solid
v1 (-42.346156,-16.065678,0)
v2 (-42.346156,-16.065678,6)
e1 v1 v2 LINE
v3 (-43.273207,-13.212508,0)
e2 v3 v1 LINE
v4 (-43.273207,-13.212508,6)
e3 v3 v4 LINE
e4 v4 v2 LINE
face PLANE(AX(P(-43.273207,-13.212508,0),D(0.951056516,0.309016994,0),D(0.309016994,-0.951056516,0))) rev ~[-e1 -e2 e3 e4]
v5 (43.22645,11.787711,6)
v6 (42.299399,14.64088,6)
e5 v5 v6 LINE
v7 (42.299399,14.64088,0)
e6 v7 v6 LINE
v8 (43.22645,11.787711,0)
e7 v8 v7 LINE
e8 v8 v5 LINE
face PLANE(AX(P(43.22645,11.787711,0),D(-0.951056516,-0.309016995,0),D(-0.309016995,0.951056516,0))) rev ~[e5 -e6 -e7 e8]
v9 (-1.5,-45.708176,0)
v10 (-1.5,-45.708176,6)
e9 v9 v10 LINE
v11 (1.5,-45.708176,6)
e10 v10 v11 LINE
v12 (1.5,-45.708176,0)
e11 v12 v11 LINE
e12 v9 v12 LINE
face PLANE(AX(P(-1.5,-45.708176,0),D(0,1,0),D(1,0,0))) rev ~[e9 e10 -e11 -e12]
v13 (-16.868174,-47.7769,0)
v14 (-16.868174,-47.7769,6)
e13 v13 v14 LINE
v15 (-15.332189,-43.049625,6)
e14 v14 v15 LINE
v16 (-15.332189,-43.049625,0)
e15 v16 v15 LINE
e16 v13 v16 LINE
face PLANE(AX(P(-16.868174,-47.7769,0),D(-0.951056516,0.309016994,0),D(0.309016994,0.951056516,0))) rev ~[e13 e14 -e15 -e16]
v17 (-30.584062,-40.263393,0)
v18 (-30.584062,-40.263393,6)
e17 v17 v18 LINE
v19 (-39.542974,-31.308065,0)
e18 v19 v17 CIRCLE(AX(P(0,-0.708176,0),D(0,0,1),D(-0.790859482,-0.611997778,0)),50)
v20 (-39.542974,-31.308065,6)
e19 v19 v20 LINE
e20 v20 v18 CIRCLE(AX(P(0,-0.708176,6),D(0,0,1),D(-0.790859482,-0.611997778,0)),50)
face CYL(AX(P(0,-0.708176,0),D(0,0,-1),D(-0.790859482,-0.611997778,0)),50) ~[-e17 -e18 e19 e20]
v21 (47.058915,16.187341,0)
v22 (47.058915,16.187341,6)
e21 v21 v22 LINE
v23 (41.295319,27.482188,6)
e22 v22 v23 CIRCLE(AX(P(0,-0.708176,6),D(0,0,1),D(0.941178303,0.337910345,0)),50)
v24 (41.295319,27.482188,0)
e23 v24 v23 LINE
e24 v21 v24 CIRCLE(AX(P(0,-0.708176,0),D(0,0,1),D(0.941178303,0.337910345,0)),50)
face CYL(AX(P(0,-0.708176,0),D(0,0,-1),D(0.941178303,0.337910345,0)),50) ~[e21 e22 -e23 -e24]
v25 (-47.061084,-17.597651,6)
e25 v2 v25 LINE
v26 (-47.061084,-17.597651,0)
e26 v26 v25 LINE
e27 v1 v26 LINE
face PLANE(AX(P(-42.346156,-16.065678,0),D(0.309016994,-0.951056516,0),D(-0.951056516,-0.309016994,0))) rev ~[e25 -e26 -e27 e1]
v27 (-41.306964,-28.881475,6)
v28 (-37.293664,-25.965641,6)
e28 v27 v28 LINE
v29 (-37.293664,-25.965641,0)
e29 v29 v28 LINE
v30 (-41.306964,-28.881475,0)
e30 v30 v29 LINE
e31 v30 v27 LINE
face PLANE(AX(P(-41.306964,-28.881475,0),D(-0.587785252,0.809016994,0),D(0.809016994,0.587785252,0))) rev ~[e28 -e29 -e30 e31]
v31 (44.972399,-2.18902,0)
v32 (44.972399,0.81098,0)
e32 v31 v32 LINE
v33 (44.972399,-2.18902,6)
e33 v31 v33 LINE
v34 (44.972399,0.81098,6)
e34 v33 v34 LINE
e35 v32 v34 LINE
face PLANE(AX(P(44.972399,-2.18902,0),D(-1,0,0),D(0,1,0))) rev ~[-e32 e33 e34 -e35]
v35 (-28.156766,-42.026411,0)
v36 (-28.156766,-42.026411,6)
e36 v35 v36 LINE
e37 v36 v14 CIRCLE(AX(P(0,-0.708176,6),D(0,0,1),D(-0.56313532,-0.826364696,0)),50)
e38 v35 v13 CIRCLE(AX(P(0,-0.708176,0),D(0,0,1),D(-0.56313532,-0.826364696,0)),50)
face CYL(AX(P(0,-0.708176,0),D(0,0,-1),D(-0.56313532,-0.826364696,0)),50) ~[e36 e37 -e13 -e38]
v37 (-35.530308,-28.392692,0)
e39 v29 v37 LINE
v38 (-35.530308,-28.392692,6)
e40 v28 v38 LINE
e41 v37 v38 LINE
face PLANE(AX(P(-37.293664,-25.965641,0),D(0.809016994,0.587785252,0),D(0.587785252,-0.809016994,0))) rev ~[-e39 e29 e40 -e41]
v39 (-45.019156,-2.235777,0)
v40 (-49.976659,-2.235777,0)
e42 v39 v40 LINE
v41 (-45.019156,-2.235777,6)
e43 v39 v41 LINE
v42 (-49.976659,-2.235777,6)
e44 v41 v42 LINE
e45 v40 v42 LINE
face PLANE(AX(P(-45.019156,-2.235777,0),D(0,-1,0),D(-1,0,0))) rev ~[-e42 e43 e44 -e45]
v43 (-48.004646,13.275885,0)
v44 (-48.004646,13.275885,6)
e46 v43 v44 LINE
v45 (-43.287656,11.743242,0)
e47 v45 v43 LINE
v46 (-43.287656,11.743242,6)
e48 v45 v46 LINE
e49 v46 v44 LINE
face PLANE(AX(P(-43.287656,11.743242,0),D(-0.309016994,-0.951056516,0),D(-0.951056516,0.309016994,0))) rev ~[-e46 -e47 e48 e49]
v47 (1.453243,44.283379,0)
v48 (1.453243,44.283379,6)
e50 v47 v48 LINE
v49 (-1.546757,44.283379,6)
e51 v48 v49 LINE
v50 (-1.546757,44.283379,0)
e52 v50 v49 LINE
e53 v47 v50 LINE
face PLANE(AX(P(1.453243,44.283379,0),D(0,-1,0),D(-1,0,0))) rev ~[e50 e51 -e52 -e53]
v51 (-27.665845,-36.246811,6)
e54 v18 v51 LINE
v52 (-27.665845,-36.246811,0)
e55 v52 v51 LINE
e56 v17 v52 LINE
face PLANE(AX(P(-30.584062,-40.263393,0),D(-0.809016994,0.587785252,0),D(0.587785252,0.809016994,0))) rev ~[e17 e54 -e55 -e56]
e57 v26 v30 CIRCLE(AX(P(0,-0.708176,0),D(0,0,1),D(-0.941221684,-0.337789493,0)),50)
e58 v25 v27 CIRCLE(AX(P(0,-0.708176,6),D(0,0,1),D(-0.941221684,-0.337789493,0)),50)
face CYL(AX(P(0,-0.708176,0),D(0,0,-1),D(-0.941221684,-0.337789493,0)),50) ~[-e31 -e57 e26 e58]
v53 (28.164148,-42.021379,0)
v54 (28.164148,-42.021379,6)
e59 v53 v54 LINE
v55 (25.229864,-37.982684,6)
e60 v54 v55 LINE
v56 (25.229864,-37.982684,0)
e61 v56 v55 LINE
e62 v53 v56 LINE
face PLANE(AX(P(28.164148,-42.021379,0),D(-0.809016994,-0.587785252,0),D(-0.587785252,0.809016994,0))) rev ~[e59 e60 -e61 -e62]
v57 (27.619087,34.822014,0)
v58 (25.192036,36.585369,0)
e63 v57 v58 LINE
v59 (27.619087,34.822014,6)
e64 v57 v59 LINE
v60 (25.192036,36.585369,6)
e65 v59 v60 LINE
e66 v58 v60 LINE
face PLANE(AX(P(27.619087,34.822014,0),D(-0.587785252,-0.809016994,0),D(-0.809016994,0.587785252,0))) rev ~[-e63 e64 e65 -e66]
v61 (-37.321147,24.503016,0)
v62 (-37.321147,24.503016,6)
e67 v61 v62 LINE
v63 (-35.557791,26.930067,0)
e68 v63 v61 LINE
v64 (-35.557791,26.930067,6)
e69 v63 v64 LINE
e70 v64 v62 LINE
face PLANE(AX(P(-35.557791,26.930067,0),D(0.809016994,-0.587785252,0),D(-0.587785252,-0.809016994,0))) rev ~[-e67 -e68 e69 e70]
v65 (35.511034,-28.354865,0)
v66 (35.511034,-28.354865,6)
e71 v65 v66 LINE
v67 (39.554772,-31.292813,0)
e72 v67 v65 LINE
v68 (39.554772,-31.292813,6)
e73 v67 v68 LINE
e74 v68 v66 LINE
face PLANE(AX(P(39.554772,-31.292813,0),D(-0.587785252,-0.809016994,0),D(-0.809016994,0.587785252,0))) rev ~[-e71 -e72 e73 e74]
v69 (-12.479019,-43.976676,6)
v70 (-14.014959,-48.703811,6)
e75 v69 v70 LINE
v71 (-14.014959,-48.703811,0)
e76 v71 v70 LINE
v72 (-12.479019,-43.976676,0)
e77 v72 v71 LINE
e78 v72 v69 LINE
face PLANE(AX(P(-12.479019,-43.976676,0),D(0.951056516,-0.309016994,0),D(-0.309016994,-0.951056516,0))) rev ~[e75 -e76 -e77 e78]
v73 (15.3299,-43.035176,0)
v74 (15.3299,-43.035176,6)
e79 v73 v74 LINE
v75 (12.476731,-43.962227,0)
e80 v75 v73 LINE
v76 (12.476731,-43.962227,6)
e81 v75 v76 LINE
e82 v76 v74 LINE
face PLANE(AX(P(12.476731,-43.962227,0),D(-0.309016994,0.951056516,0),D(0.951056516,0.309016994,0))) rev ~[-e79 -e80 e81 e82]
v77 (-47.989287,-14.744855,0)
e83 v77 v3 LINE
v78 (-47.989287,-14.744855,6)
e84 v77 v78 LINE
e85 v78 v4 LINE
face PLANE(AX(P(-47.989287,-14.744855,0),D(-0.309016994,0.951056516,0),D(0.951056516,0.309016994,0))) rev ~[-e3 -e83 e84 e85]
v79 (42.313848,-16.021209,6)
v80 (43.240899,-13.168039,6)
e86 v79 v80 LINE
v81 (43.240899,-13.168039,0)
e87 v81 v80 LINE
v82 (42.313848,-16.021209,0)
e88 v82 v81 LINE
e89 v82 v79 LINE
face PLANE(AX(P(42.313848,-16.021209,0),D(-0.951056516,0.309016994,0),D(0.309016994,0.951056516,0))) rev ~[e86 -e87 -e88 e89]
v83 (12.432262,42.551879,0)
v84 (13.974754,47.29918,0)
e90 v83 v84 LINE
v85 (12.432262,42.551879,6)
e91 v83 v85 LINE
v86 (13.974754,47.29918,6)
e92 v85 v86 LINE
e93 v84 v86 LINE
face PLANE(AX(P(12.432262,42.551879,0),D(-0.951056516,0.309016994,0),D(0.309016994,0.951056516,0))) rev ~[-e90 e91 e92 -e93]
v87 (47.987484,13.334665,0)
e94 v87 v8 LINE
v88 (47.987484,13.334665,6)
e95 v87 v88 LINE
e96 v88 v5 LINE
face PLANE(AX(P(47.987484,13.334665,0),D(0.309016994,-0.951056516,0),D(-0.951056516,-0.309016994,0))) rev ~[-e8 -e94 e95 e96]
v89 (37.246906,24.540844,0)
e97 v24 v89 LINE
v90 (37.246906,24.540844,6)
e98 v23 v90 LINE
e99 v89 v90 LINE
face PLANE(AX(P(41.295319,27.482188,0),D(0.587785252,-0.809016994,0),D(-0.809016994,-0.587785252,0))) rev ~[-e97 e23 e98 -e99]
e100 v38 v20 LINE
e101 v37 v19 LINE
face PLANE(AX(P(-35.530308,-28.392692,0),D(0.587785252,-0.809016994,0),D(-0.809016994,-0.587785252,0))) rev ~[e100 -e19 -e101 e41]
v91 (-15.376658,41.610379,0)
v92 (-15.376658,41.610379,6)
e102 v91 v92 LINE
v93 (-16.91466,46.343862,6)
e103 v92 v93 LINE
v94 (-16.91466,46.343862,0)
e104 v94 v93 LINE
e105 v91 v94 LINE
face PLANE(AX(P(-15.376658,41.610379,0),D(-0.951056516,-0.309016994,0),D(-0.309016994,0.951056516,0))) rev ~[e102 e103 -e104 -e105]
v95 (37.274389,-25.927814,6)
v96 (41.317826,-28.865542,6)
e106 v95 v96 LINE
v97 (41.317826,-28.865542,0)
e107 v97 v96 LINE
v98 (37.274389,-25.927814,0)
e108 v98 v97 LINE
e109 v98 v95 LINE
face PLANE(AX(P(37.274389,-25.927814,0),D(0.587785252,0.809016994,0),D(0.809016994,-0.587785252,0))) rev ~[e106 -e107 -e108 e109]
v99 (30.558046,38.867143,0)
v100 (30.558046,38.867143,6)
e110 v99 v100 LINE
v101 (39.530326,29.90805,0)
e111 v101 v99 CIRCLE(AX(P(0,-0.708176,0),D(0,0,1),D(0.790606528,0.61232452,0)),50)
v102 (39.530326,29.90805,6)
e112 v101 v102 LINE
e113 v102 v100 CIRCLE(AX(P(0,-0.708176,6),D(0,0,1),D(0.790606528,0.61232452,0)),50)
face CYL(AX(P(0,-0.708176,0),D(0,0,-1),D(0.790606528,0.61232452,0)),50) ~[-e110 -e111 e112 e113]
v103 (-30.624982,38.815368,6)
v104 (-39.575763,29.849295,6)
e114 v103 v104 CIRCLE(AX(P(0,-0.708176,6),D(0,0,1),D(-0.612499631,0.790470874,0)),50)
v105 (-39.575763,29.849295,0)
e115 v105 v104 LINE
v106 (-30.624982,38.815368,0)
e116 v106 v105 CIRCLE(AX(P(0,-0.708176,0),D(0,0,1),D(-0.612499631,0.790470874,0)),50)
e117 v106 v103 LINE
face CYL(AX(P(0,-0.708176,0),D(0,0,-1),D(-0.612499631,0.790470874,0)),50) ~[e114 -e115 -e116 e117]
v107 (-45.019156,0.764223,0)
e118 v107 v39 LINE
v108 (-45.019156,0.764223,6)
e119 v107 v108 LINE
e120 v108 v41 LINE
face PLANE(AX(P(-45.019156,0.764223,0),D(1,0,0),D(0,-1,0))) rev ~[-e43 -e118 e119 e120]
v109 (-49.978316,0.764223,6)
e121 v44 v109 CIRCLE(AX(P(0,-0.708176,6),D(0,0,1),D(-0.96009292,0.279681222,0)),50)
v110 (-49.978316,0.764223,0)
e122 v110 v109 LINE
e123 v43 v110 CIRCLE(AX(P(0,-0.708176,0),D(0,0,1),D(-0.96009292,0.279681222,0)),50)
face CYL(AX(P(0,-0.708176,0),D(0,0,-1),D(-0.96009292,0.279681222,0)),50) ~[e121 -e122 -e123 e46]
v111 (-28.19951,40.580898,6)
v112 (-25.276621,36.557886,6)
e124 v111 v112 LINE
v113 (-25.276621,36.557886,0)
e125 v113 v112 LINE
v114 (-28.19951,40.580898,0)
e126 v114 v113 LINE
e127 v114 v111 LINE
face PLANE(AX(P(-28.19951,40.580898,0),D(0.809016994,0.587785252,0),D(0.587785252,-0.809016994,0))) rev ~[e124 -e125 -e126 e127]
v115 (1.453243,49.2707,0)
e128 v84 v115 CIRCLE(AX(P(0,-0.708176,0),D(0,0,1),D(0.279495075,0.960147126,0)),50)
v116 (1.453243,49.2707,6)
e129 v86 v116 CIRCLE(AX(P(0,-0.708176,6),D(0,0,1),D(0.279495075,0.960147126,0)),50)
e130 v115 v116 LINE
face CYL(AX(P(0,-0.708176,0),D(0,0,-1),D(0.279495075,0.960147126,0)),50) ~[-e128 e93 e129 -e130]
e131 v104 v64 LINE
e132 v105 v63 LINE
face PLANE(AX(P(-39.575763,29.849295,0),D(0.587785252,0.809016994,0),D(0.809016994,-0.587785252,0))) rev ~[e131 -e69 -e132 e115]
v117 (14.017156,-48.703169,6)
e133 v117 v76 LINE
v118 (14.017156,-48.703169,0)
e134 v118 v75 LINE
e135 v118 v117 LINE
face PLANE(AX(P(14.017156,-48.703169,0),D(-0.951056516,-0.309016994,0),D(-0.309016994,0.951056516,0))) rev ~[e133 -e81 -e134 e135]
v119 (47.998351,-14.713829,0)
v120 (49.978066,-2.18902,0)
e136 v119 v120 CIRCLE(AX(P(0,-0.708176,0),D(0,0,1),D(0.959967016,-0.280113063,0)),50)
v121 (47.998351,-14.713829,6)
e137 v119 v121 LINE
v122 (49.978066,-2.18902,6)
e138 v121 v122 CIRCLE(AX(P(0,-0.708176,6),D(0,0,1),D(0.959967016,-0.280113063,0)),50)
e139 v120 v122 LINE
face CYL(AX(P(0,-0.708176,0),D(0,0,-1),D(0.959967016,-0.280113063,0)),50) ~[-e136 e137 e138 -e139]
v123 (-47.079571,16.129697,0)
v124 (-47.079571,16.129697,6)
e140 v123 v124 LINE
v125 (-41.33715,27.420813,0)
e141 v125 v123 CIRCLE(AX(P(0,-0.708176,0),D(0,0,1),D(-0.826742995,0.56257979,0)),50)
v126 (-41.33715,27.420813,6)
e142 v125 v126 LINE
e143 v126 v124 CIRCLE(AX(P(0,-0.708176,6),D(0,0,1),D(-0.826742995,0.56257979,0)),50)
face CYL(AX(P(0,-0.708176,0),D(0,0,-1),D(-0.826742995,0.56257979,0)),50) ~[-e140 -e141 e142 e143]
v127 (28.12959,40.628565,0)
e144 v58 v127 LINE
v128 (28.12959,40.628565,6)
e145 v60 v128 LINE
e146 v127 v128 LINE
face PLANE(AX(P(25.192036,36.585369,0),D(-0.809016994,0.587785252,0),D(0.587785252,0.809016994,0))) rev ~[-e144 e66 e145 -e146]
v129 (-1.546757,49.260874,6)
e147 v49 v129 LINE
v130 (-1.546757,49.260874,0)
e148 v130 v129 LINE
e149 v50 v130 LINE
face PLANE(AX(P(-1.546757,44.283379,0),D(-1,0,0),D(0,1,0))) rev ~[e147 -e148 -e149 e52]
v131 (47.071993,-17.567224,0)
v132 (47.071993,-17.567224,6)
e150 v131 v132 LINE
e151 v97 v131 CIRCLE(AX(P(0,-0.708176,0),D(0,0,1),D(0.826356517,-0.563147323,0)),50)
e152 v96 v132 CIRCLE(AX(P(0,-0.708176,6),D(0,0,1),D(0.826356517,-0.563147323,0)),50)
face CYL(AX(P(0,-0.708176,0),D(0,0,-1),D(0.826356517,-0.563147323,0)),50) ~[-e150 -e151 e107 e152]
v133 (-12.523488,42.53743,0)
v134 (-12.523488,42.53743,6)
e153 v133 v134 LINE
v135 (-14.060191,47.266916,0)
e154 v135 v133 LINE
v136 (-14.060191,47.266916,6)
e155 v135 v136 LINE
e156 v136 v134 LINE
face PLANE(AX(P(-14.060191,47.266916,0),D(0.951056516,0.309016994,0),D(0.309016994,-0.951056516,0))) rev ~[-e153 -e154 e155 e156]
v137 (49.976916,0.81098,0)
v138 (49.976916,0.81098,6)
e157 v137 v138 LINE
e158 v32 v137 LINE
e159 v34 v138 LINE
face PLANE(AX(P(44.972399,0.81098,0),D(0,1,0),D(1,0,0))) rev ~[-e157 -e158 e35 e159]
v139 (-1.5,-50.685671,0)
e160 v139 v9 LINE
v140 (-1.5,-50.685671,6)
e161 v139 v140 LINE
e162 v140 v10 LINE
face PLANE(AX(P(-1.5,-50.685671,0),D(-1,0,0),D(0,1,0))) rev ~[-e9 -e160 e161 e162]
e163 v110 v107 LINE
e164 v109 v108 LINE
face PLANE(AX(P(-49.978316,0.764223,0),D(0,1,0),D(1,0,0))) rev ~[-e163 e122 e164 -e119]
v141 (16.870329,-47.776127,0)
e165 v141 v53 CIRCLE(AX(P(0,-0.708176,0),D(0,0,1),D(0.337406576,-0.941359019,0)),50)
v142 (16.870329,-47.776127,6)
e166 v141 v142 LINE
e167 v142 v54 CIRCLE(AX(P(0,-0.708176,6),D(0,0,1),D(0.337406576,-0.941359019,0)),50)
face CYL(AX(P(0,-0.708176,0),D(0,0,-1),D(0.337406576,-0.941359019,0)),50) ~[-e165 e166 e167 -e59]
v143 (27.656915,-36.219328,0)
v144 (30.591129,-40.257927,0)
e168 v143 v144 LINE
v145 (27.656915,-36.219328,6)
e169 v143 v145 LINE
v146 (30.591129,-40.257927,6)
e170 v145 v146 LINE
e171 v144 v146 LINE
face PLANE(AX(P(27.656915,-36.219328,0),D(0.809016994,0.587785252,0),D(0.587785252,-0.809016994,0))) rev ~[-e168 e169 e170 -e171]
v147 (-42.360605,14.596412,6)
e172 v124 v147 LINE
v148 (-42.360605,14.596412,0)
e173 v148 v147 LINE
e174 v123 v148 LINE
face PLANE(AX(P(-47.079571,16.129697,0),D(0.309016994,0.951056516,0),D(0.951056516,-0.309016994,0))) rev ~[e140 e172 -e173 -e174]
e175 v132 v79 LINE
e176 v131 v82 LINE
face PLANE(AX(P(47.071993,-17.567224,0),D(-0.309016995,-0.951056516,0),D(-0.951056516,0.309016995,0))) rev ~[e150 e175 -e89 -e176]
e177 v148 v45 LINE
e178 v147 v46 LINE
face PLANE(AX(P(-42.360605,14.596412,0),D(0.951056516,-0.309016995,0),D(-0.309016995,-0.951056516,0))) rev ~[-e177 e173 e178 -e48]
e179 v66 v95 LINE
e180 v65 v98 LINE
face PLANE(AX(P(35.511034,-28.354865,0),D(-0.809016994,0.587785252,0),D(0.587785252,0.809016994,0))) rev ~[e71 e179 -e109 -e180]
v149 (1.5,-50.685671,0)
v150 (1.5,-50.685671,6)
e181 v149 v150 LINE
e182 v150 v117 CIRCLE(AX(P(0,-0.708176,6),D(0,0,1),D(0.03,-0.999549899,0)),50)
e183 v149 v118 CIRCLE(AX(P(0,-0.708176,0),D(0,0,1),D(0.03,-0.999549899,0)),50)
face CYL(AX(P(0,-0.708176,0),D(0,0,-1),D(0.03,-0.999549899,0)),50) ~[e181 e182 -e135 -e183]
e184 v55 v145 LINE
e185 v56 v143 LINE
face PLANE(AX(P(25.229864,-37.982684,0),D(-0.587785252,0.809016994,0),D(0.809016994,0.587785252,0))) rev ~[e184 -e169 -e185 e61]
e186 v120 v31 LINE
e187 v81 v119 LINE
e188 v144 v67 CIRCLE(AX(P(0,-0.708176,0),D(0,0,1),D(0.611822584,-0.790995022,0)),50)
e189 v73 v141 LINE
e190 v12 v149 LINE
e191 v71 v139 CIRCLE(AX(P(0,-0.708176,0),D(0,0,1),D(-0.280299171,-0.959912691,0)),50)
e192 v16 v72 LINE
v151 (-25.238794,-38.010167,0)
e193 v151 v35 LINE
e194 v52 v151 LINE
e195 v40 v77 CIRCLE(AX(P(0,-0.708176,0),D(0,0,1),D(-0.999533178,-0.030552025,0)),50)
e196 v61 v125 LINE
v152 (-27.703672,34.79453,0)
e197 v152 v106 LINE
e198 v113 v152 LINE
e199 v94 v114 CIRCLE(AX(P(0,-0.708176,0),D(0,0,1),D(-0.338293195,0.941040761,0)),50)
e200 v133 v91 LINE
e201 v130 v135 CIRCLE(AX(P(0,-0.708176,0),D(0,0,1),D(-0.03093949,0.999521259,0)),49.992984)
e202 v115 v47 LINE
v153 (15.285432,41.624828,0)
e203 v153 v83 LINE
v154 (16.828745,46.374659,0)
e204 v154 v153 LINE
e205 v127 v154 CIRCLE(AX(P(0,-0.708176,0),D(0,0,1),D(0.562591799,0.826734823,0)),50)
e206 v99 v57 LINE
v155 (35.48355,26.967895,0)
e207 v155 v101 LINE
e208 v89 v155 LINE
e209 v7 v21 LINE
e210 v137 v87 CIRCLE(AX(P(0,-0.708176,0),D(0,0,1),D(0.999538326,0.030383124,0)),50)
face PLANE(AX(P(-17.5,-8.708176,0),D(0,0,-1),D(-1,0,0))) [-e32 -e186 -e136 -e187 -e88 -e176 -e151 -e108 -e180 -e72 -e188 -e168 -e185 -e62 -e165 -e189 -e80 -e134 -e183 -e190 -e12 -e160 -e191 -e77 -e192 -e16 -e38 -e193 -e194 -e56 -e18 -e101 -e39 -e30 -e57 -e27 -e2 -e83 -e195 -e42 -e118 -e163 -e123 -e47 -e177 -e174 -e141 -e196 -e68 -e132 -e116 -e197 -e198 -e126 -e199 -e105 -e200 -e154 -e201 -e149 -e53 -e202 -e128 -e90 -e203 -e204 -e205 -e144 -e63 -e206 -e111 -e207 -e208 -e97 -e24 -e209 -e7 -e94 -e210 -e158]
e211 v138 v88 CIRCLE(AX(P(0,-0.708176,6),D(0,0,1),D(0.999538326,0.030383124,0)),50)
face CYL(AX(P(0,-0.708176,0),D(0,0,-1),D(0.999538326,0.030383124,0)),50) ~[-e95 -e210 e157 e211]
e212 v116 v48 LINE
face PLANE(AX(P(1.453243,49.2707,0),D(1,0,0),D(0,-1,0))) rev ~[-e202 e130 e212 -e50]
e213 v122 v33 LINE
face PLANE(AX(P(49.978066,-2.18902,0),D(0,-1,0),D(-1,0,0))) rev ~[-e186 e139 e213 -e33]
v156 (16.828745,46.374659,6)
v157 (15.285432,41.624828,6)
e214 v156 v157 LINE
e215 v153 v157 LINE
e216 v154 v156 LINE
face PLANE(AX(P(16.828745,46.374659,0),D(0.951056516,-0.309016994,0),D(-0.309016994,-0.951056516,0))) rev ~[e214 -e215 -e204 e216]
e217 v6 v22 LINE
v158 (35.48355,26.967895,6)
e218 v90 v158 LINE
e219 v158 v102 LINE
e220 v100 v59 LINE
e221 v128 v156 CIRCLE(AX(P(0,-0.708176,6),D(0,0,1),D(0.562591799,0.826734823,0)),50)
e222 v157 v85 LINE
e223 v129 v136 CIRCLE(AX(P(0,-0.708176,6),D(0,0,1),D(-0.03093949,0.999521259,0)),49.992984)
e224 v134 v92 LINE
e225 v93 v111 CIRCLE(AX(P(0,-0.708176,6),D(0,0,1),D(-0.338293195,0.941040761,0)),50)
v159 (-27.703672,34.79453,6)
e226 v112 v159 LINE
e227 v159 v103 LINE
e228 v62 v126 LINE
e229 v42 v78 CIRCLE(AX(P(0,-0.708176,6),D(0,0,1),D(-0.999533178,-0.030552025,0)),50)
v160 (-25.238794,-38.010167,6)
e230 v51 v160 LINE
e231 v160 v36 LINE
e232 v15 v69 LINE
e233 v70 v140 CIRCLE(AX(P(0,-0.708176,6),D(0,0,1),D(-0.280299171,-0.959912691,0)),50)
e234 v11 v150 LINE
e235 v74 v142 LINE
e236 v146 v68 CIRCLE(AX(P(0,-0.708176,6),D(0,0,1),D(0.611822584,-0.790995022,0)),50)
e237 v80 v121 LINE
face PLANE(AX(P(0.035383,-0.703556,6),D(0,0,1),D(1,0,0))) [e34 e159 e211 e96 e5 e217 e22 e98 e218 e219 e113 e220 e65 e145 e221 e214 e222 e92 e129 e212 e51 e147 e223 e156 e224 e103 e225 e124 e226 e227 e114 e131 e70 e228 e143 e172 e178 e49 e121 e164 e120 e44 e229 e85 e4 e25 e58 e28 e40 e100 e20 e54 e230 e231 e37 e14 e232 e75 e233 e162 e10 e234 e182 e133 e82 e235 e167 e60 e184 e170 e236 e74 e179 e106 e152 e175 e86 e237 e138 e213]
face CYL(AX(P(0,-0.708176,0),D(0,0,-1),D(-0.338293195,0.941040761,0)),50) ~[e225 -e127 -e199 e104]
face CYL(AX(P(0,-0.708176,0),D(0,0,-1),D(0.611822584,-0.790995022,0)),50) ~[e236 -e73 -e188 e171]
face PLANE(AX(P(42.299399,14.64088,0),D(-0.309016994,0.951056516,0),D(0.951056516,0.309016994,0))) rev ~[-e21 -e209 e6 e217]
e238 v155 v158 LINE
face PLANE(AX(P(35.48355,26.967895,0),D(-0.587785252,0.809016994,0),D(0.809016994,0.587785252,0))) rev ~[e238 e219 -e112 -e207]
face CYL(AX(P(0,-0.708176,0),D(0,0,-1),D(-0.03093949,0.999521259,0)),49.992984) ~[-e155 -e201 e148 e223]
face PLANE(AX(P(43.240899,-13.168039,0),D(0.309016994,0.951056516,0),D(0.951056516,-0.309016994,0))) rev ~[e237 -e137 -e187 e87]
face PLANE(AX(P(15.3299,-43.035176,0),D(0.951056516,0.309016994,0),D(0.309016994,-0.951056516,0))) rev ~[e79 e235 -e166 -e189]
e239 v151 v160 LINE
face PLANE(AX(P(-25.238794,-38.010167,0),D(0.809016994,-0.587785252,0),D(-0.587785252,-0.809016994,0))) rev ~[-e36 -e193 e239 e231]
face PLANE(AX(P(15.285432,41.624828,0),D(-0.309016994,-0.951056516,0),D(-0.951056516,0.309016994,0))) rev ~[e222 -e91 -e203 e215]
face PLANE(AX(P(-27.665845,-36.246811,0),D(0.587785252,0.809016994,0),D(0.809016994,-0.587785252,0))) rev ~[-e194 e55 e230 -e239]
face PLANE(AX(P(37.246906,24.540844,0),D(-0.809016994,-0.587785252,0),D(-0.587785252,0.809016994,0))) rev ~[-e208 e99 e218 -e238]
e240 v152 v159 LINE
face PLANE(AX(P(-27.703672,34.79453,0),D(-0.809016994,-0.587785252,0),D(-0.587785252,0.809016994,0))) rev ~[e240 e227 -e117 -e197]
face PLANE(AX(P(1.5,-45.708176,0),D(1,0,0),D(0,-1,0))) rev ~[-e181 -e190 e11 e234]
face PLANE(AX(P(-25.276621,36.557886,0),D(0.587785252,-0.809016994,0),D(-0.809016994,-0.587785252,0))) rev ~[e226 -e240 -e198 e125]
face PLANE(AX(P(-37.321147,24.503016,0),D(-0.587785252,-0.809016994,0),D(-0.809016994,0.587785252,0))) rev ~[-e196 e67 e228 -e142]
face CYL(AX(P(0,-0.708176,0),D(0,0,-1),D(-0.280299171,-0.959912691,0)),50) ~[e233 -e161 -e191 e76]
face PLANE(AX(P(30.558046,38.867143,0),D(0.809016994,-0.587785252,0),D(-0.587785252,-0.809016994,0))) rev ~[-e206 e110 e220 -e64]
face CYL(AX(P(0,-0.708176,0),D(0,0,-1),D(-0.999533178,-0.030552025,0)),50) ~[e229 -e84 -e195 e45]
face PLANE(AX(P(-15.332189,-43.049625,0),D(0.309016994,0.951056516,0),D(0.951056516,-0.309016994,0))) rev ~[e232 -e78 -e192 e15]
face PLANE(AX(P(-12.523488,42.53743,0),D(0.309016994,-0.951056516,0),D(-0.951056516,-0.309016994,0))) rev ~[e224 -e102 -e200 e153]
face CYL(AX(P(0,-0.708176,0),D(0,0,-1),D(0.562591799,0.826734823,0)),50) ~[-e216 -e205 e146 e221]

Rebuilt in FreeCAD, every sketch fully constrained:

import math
import FreeCAD as App
import Part
import Sketcher
Q = App.Units.Quantity

doc = App.newDocument("Part")
body = doc.addObject("PartDesign::Body", "Body")

# Sketch on XY plane
sketch1 = body.newObject("Sketcher::SketchObject", "Sketch")
sketch1.AttachmentSupport = (doc.getObject("XY_Plane"), [""])
sketch1.MapMode = "FlatFace"
sketch1.addGeometry([
    Part.ArcOfCircle(Part.Circle(App.Vector(0, -0.708176, 0), App.Vector(0, 0, 1), 50), math.radians(-106.278061), math.radians(-91.719131)),  # 0
    Part.LineSegment(App.Vector(-1.5, -50.685671, 0), App.Vector(-1.5, -45.708176, 0)),  # 1
    Part.LineSegment(App.Vector(-1.5, -45.708176, 0), App.Vector(1.5, -45.708176, 0)),  # 2
    Part.LineSegment(App.Vector(1.5, -45.708176, 0), App.Vector(1.5, -50.685671, 0)),  # 3
    Part.ArcOfCircle(Part.Circle(App.Vector(0, -0.708176, 0), App.Vector(0, 0, 1), 50), math.radians(-88.280869), math.radians(-73.719315)),  # 4
    Part.LineSegment(App.Vector(14.017156, -48.703169, 0), App.Vector(12.476731, -43.962227, 0)),  # 5
    Part.LineSegment(App.Vector(12.476731, -43.962227, 0), App.Vector(15.3299, -43.035176, 0)),  # 6
    Part.LineSegment(App.Vector(15.3299, -43.035176, 0), App.Vector(16.870329, -47.776127, 0)),  # 7
    Part.ArcOfCircle(Part.Circle(App.Vector(0, -0.708176, 0), App.Vector(0, 0, 1), 50), math.radians(-70.281053), math.radians(-55.716858)),  # 8
    Part.LineSegment(App.Vector(28.164148, -42.021379, 0), App.Vector(25.229864, -37.982684, 0)),  # 9
    Part.LineSegment(App.Vector(25.229864, -37.982684, 0), App.Vector(27.656915, -36.219328, 0)),  # 10
    Part.LineSegment(App.Vector(27.656915, -36.219328, 0), App.Vector(30.591129, -40.257927, 0)),  # 11
    Part.ArcOfCircle(Part.Circle(App.Vector(0, -0.708176, 0), App.Vector(0, 0, 1), 50), math.radians(-52.278595), math.radians(-37.711999)),  # 12
    Part.LineSegment(App.Vector(39.554772, -31.292813, 0), App.Vector(35.511034, -28.354865, 0)),  # 13
    Part.LineSegment(App.Vector(35.511034, -28.354865, 0), App.Vector(37.274389, -25.927814, 0)),  # 14
    Part.LineSegment(App.Vector(37.274389, -25.927814, 0), App.Vector(41.317826, -28.865542, 0)),  # 15
    Part.ArcOfCircle(Part.Circle(App.Vector(0, -0.708176, 0), App.Vector(0, 0, 1), 50), math.radians(-34.273737), math.radians(-19.705216)),  # 16
    Part.LineSegment(App.Vector(47.071993, -17.567224, 0), App.Vector(42.313848, -16.021209, 0)),  # 17
    Part.LineSegment(App.Vector(42.313848, -16.021209, 0), App.Vector(43.240899, -13.168039, 0)),  # 18
    Part.LineSegment(App.Vector(43.240899, -13.168039, 0), App.Vector(47.998351, -14.713829, 0)),  # 19
    Part.ArcOfCircle(Part.Circle(App.Vector(0, -0.708176, 0), App.Vector(0, 0, 1), 50), math.radians(-16.266953), math.radians(-1.69717)),  # 20
    Part.LineSegment(App.Vector(49.978066, -2.18902, 0), App.Vector(44.972399, -2.18902, 0)),  # 21
    Part.LineSegment(App.Vector(44.972399, -2.18902, 0), App.Vector(44.972399, 0.81098, 0)),  # 22
    Part.LineSegment(App.Vector(44.972399, 0.81098, 0), App.Vector(49.976916, 0.81098, 0)),  # 23
    Part.ArcOfCircle(Part.Circle(App.Vector(0, -0.708176, 0), App.Vector(0, 0, 1), 50), math.radians(1.741093), math.radians(16.311349)),  # 24
    Part.LineSegment(App.Vector(47.987484, 13.334665, 0), App.Vector(43.22645, 11.787711, 0)),  # 25
    Part.LineSegment(App.Vector(43.22645, 11.787711, 0), App.Vector(42.299399, 14.64088, 0)),  # 26
    Part.LineSegment(App.Vector(42.299399, 14.64088, 0), App.Vector(47.058915, 16.187341, 0)),  # 27
    Part.ArcOfCircle(Part.Circle(App.Vector(0, -0.708176, 0), App.Vector(0, 0, 1), 50), math.radians(19.749612), math.radians(34.319508)),  # 28
    Part.LineSegment(App.Vector(41.295319, 27.482188, 0), App.Vector(37.246906, 24.540844, 0)),  # 29
    Part.LineSegment(App.Vector(37.246906, 24.540844, 0), App.Vector(35.48355, 26.967895, 0)),  # 30
    Part.LineSegment(App.Vector(35.48355, 26.967895, 0), App.Vector(39.530326, 29.90805, 0)),  # 31
    Part.ArcOfCircle(Part.Circle(App.Vector(0, -0.708176, 0), App.Vector(0, 0, 1), 50), math.radians(37.757771), math.radians(52.326508)),  # 32
    Part.LineSegment(App.Vector(30.558046, 38.867143, 0), App.Vector(27.619087, 34.822014, 0)),  # 33
    Part.LineSegment(App.Vector(27.619087, 34.822014, 0), App.Vector(25.192036, 36.585369, 0)),  # 34
    Part.LineSegment(App.Vector(25.192036, 36.585369, 0), App.Vector(28.12959, 40.628565, 0)),  # 35
    Part.ArcOfCircle(Part.Circle(App.Vector(0, -0.708176, 0), App.Vector(0, 0, 1), 50), math.radians(55.764772), math.radians(70.331664)),  # 36
    Part.LineSegment(App.Vector(16.828745, 46.374659, 0), App.Vector(15.285432, 41.624828, 0)),  # 37
    Part.LineSegment(App.Vector(15.285432, 41.624828, 0), App.Vector(12.432262, 42.551879, 0)),  # 38
    Part.LineSegment(App.Vector(12.432262, 42.551879, 0), App.Vector(13.974754, 47.29918, 0)),  # 39
    Part.ArcOfCircle(Part.Circle(App.Vector(0, -0.708176, 0), App.Vector(0, 0, 1), 50), math.radians(73.769928), math.radians(88.334472)),  # 40
    Part.LineSegment(App.Vector(1.453243, 49.2707, 0), App.Vector(1.453243, 44.283379, 0)),  # 41
    Part.LineSegment(App.Vector(1.453243, 44.283379, 0), App.Vector(-1.546757, 44.283379, 0)),  # 42
    Part.LineSegment(App.Vector(-1.546757, 44.283379, 0), App.Vector(-1.546757, 49.260874, 0)),  # 43
    Part.ArcOfCircle(Part.Circle(App.Vector(0, -0.708176, 0), App.Vector(0, 0, 1), 49.992984), math.radians(91.772985), math.radians(106.334422)),  # 44
    Part.LineSegment(App.Vector(-14.060191, 47.266916, 0), App.Vector(-12.523488, 42.53743, 0)),  # 45
    Part.LineSegment(App.Vector(-12.523488, 42.53743, 0), App.Vector(-15.376658, 41.610379, 0)),  # 46
    Part.LineSegment(App.Vector(-15.376658, 41.610379, 0), App.Vector(-16.91466, 46.343862, 0)),  # 47
    Part.ArcOfCircle(Part.Circle(App.Vector(0, -0.708176, 0), App.Vector(0, 0, 1), 50), math.radians(109.77292), math.radians(124.332199)),  # 48
    Part.LineSegment(App.Vector(-28.19951, 40.580898, 0), App.Vector(-25.276621, 36.557886, 0)),  # 49
    Part.LineSegment(App.Vector(-25.276621, 36.557886, 0), App.Vector(-27.703672, 34.79453, 0)),  # 50
    Part.LineSegment(App.Vector(-27.703672, 34.79453, 0), App.Vector(-30.624982, 38.815368, 0)),  # 51
    Part.ArcOfCircle(Part.Circle(App.Vector(0, -0.708176, 0), App.Vector(0, 0, 1), 50), math.radians(127.770463), math.radians(142.32734)),  # 52
    Part.LineSegment(App.Vector(-39.575763, 29.849295, 0), App.Vector(-35.557791, 26.930067, 0)),  # 53
    Part.LineSegment(App.Vector(-35.557791, 26.930067, 0), App.Vector(-37.321147, 24.503016, 0)),  # 54
    Part.LineSegment(App.Vector(-37.321147, 24.503016, 0), App.Vector(-41.33715, 27.420813, 0)),  # 55
    Part.ArcOfCircle(Part.Circle(App.Vector(0, -0.708176, 0), App.Vector(0, 0, 1), 50), math.radians(145.765604), math.radians(160.320557)),  # 56
    Part.LineSegment(App.Vector(-47.079571, 16.129697, 0), App.Vector(-42.360605, 14.596412, 0)),  # 57
    Part.LineSegment(App.Vector(-42.360605, 14.596412, 0), App.Vector(-43.287656, 11.743242, 0)),  # 58
    Part.LineSegment(App.Vector(-43.287656, 11.743242, 0), App.Vector(-48.004646, 13.275885, 0)),  # 59
    Part.ArcOfCircle(Part.Circle(App.Vector(0, -0.708176, 0), App.Vector(0, 0, 1), 50), math.radians(163.75882), math.radians(178.312511)),  # 60
    Part.LineSegment(App.Vector(-49.978316, 0.764223, 0), App.Vector(-45.019156, 0.764223, 0)),  # 61
    Part.LineSegment(App.Vector(-45.019156, 0.764223, 0), App.Vector(-45.019156, -2.235777, 0)),  # 62
    Part.LineSegment(App.Vector(-45.019156, -2.235777, 0), App.Vector(-49.976659, -2.235777, 0)),  # 63
    Part.ArcOfCircle(Part.Circle(App.Vector(0, -0.708176, 0), App.Vector(0, 0, 1), 50), math.radians(-178.249225), math.radians(-163.696008)),  # 64
    Part.LineSegment(App.Vector(-47.989287, -14.744855, 0), App.Vector(-43.273207, -13.212508, 0)),  # 65
    Part.LineSegment(App.Vector(-43.273207, -13.212508, 0), App.Vector(-42.346156, -16.065678, 0)),  # 66
    Part.LineSegment(App.Vector(-42.346156, -16.065678, 0), App.Vector(-47.061084, -17.597651, 0)),  # 67
    Part.ArcOfCircle(Part.Circle(App.Vector(0, -0.708176, 0), App.Vector(0, 0, 1), 50), math.radians(-160.257745), math.radians(-145.704167)),  # 68
    Part.LineSegment(App.Vector(-41.306964, -28.881475, 0), App.Vector(-37.293664, -25.965641, 0)),  # 69
    Part.LineSegment(App.Vector(-37.293664, -25.965641, 0), App.Vector(-35.530308, -28.392692, 0)),  # 70
    Part.LineSegment(App.Vector(-35.530308, -28.392692, 0), App.Vector(-39.542974, -31.308065, 0)),  # 71
    Part.ArcOfCircle(Part.Circle(App.Vector(0, -0.708176, 0), App.Vector(0, 0, 1), 50), math.radians(-142.265904), math.radians(-127.711167)),  # 72
    Part.LineSegment(App.Vector(-30.584062, -40.263393, 0), App.Vector(-27.665845, -36.246811, 0)),  # 73
    Part.LineSegment(App.Vector(-27.665845, -36.246811, 0), App.Vector(-25.238794, -38.010167, 0)),  # 74
    Part.LineSegment(App.Vector(-25.238794, -38.010167, 0), App.Vector(-28.156766, -42.026411, 0)),  # 75
    Part.ArcOfCircle(Part.Circle(App.Vector(0, -0.708176, 0), App.Vector(0, 0, 1), 50), math.radians(-124.272905), math.radians(-109.716324)),  # 76
    Part.LineSegment(App.Vector(-16.868174, -47.7769, 0), App.Vector(-15.332189, -43.049625, 0)),  # 77
    Part.LineSegment(App.Vector(-15.332189, -43.049625, 0), App.Vector(-12.479019, -43.976676, 0)),  # 78
    Part.LineSegment(App.Vector(-12.479019, -43.976676, 0), App.Vector(-14.014959, -48.703811, 0)),  # 79
    Part.LineSegment(App.Vector(8, -34.708176, 0), App.Vector(-8, -34.708176, 0)),  # 80
    Part.LineSegment(App.Vector(-8, -34.708176, 0), App.Vector(-8, -28.708176, 0)),  # 81
    Part.LineSegment(App.Vector(-8, -28.708176, 0), App.Vector(8, -28.708176, 0)),  # 82
    Part.LineSegment(App.Vector(8, -28.708176, 0), App.Vector(8, -34.708176, 0)),  # 83
    Part.Circle(App.Vector(-17.5, -8.708176, 0), App.Vector(0, 0, 1), 2.75),  # 84
    Part.Circle(App.Vector(17.5, -8.708176, 0), App.Vector(0, 0, 1), 2.75),  # 85
], False)
sketch1.addConstraint([
    Sketcher.Constraint("Coincident", 0, 2, 1, 1),
    Sketcher.Constraint("Coincident", 1, 2, 2, 1),
    Sketcher.Constraint("Coincident", 2, 2, 3, 1),
    Sketcher.Constraint("Coincident", 3, 2, 4, 1),
    Sketcher.Constraint("Coincident", 4, 2, 5, 1),
    Sketcher.Constraint("Coincident", 5, 2, 6, 1),
    Sketcher.Constraint("Coincident", 6, 2, 7, 1),
    Sketcher.Constraint("Coincident", 7, 2, 8, 1),
    Sketcher.Constraint("Coincident", 8, 2, 9, 1),
    Sketcher.Constraint("Coincident", 9, 2, 10, 1),
    Sketcher.Constraint("Coincident", 10, 2, 11, 1),
    Sketcher.Constraint("Coincident", 11, 2, 12, 1),
    Sketcher.Constraint("Coincident", 12, 2, 13, 1),
    Sketcher.Constraint("Coincident", 13, 2, 14, 1),
    Sketcher.Constraint("Coincident", 14, 2, 15, 1),
    Sketcher.Constraint("Coincident", 15, 2, 16, 1),
    Sketcher.Constraint("Coincident", 16, 2, 17, 1),
    Sketcher.Constraint("Coincident", 17, 2, 18, 1),
    Sketcher.Constraint("Coincident", 18, 2, 19, 1),
    Sketcher.Constraint("Coincident", 19, 2, 20, 1),
    Sketcher.Constraint("Coincident", 20, 2, 21, 1),
    Sketcher.Constraint("Coincident", 21, 2, 22, 1),
    Sketcher.Constraint("Coincident", 22, 2, 23, 1),
    Sketcher.Constraint("Coincident", 23, 2, 24, 1),
    Sketcher.Constraint("Coincident", 24, 2, 25, 1),
    Sketcher.Constraint("Coincident", 25, 2, 26, 1),
    Sketcher.Constraint("Coincident", 26, 2, 27, 1),
    Sketcher.Constraint("Coincident", 27, 2, 28, 1),
    Sketcher.Constraint("Coincident", 28, 2, 29, 1),
    Sketcher.Constraint("Coincident", 29, 2, 30, 1),
    Sketcher.Constraint("Coincident", 30, 2, 31, 1),
    Sketcher.Constraint("Coincident", 31, 2, 32, 1),
    Sketcher.Constraint("Coincident", 32, 2, 33, 1),
    Sketcher.Constraint("Coincident", 33, 2, 34, 1),
    Sketcher.Constraint("Coincident", 34, 2, 35, 1),
    Sketcher.Constraint("Coincident", 35, 2, 36, 1),
    Sketcher.Constraint("Coincident", 36, 2, 37, 1),
    Sketcher.Constraint("Coincident", 37, 2, 38, 1),
    Sketcher.Constraint("Coincident", 38, 2, 39, 1),
    Sketcher.Constraint("Coincident", 39, 2, 40, 1),
    Sketcher.Constraint("Coincident", 40, 2, 41, 1),
    Sketcher.Constraint("Coincident", 41, 2, 42, 1),
    Sketcher.Constraint("Coincident", 42, 2, 43, 1),
    Sketcher.Constraint("Coincident", 43, 2, 44, 1),
    Sketcher.Constraint("Coincident", 44, 2, 45, 1),
    Sketcher.Constraint("Coincident", 45, 2, 46, 1),
    Sketcher.Constraint("Coincident", 46, 2, 47, 1),
    Sketcher.Constraint("Coincident", 47, 2, 48, 1),
    Sketcher.Constraint("Coincident", 48, 2, 49, 1),
    Sketcher.Constraint("Coincident", 49, 2, 50, 1),
    Sketcher.Constraint("Coincident", 50, 2, 51, 1),
    Sketcher.Constraint("Coincident", 51, 2, 52, 1),
    Sketcher.Constraint("Coincident", 52, 2, 53, 1),
    Sketcher.Constraint("Coincident", 53, 2, 54, 1),
    Sketcher.Constraint("Coincident", 54, 2, 55, 1),
    Sketcher.Constraint("Coincident", 55, 2, 56, 1),
    Sketcher.Constraint("Coincident", 56, 2, 57, 1),
    Sketcher.Constraint("Coincident", 57, 2, 58, 1),
    Sketcher.Constraint("Coincident", 58, 2, 59, 1),
    Sketcher.Constraint("Coincident", 59, 2, 60, 1),
    Sketcher.Constraint("Coincident", 60, 2, 61, 1),
    Sketcher.Constraint("Coincident", 61, 2, 62, 1),
    Sketcher.Constraint("Coincident", 62, 2, 63, 1),
    Sketcher.Constraint("Coincident", 63, 2, 64, 1),
    Sketcher.Constraint("Coincident", 64, 2, 65, 1),
    Sketcher.Constraint("Coincident", 65, 2, 66, 1),
    Sketcher.Constraint("Coincident", 66, 2, 67, 1),
    Sketcher.Constraint("Coincident", 67, 2, 68, 1),
    Sketcher.Constraint("Coincident", 68, 2, 69, 1),
    Sketcher.Constraint("Coincident", 69, 2, 70, 1),
    Sketcher.Constraint("Coincident", 70, 2, 71, 1),
    Sketcher.Constraint("Coincident", 71, 2, 72, 1),
    Sketcher.Constraint("Coincident", 72, 2, 73, 1),
    Sketcher.Constraint("Coincident", 73, 2, 74, 1),
    Sketcher.Constraint("Coincident", 74, 2, 75, 1),
    Sketcher.Constraint("Coincident", 75, 2, 76, 1),
    Sketcher.Constraint("Coincident", 76, 2, 77, 1),
    Sketcher.Constraint("Coincident", 77, 2, 78, 1),
    Sketcher.Constraint("Coincident", 78, 2, 79, 1),
    Sketcher.Constraint("Coincident", 79, 2, 0, 1),
    Sketcher.Constraint("Coincident", 80, 2, 81, 1),
    Sketcher.Constraint("Coincident", 81, 2, 82, 1),
    Sketcher.Constraint("Coincident", 82, 2, 83, 1),
    Sketcher.Constraint("Coincident", 83, 2, 80, 1),
    Sketcher.Constraint("Vertical", 1),
    Sketcher.Constraint("Horizontal", 2),
    Sketcher.Constraint("Vertical", 3),
    Sketcher.Constraint("Horizontal", 21),
    Sketcher.Constraint("Vertical", 22),
    Sketcher.Constraint("Horizontal", 23),
    Sketcher.Constraint("Vertical", 41),
    Sketcher.Constraint("Horizontal", 42),
    Sketcher.Constraint("Vertical", 43),
    Sketcher.Constraint("Horizontal", 61),
    Sketcher.Constraint("Vertical", 62),
    Sketcher.Constraint("Horizontal", 63),
    Sketcher.Constraint("Horizontal", 80),
    Sketcher.Constraint("Vertical", 81),
    Sketcher.Constraint("Horizontal", 82),
    Sketcher.Constraint("Vertical", 83),
    Sketcher.Constraint("Coincident", 4, 3, 0, 3),
    Sketcher.Constraint("Coincident", 8, 3, 0, 3),
    Sketcher.Constraint("Coincident", 12, 3, 0, 3),
    Sketcher.Constraint("Coincident", 16, 3, 0, 3),
    Sketcher.Constraint("Coincident", 20, 3, 0, 3),
    Sketcher.Constraint("Coincident", 24, 3, 0, 3),
    Sketcher.Constraint("Coincident", 28, 3, 0, 3),
    Sketcher.Constraint("Coincident", 32, 3, 0, 3),
    Sketcher.Constraint("Coincident", 36, 3, 0, 3),
    Sketcher.Constraint("Coincident", 40, 3, 0, 3),
    Sketcher.Constraint("Coincident", 44, 3, 0, 3),
    Sketcher.Constraint("Coincident", 48, 3, 0, 3),
    Sketcher.Constraint("Coincident", 52, 3, 0, 3),
    Sketcher.Constraint("Coincident", 56, 3, 0, 3),
    Sketcher.Constraint("Coincident", 60, 3, 0, 3),
    Sketcher.Constraint("Coincident", 64, 3, 0, 3),
    Sketcher.Constraint("Coincident", 68, 3, 0, 3),
    Sketcher.Constraint("Coincident", 72, 3, 0, 3),
    Sketcher.Constraint("Coincident", 76, 3, 0, 3),
    Sketcher.Constraint("Equal", 0, 4),
    Sketcher.Constraint("Equal", 4, 8),
    Sketcher.Constraint("Equal", 8, 12),
    Sketcher.Constraint("Equal", 12, 16),
    Sketcher.Constraint("Equal", 16, 20),
    Sketcher.Constraint("Equal", 20, 24),
    Sketcher.Constraint("Equal", 24, 28),
    Sketcher.Constraint("Equal", 28, 32),
    Sketcher.Constraint("Equal", 32, 36),
    Sketcher.Constraint("Equal", 36, 40),
    Sketcher.Constraint("Equal", 40, 48),
    Sketcher.Constraint("Equal", 48, 52),
    Sketcher.Constraint("Equal", 52, 56),
    Sketcher.Constraint("Equal", 56, 60),
    Sketcher.Constraint("Equal", 60, 64),
    Sketcher.Constraint("Equal", 64, 68),
    Sketcher.Constraint("Equal", 68, 72),
    Sketcher.Constraint("Equal", 72, 76),
    Sketcher.Constraint("Equal", 84, 85),
    Sketcher.Constraint("Symmetric", 84, 3, 85, 3, -2),
    Sketcher.Constraint("Symmetric", 0, 2, 3, 2, -2),
    Sketcher.Constraint("Perpendicular", 5, 6),
    Sketcher.Constraint("Perpendicular", 6, 7),
    Sketcher.Constraint("Perpendicular", 9, 10),
    Sketcher.Constraint("Perpendicular", 10, 11),
    Sketcher.Constraint("Perpendicular", 13, 14),
    Sketcher.Constraint("Perpendicular", 14, 15),
    Sketcher.Constraint("Perpendicular", 17, 18),
    Sketcher.Constraint("Perpendicular", 18, 19),
    Sketcher.Constraint("Perpendicular", 7, 25),
    Sketcher.Constraint("Perpendicular", 25, 26),
    Sketcher.Constraint("Perpendicular", 26, 27),
    Sketcher.Constraint("Perpendicular", 11, 29),
    Sketcher.Constraint("Perpendicular", 29, 30),
    Sketcher.Constraint("Perpendicular", 30, 31),
    Sketcher.Constraint("Perpendicular", 15, 33),
    Sketcher.Constraint("Perpendicular", 33, 34),
    Sketcher.Constraint("Perpendicular", 34, 35),
    Sketcher.Constraint("Perpendicular", 19, 37),
    Sketcher.Constraint("Perpendicular", 37, 38),
    Sketcher.Constraint("Perpendicular", 38, 39),
    Sketcher.Constraint("Perpendicular", 27, 45),
    Sketcher.Constraint("Perpendicular", 45, 46),
    Sketcher.Constraint("Perpendicular", 46, 47),
    Sketcher.Constraint("Perpendicular", 31, 49),
    Sketcher.Constraint("Perpendicular", 49, 50),
    Sketcher.Constraint("Perpendicular", 50, 51),
    Sketcher.Constraint("Perpendicular", 35, 53),
    Sketcher.Constraint("Perpendicular", 53, 54),
    Sketcher.Constraint("Perpendicular", 54, 55),
    Sketcher.Constraint("Perpendicular", 39, 57),
    Sketcher.Constraint("Perpendicular", 57, 58),
    Sketcher.Constraint("Perpendicular", 58, 59),
    Sketcher.Constraint("Perpendicular", 47, 65),
    Sketcher.Constraint("Perpendicular", 65, 66),
    Sketcher.Constraint("Perpendicular", 66, 67),
    Sketcher.Constraint("Perpendicular", 51, 69),
    Sketcher.Constraint("Perpendicular", 69, 70),
    Sketcher.Constraint("Perpendicular", 70, 71),
    Sketcher.Constraint("Perpendicular", 55, 73),
    Sketcher.Constraint("Perpendicular", 73, 74),
    Sketcher.Constraint("Perpendicular", 74, 75),
    Sketcher.Constraint("Perpendicular", 59, 77),
    Sketcher.Constraint("Perpendicular", 77, 78),
    Sketcher.Constraint("Perpendicular", 78, 79),
    Sketcher.Constraint("Equal", 2, 42),
    Sketcher.Constraint("Equal", 42, 22),
    Sketcher.Constraint("Equal", 3, 43),
    Sketcher.Constraint("Equal", 22, 62),
    Sketcher.Constraint("Equal", 6, 10),
    Sketcher.Constraint("Equal", 10, 14),
    Sketcher.Constraint("Equal", 14, 18),
    Sketcher.Constraint("Equal", 18, 26),
    Sketcher.Constraint("Equal", 26, 30),
    Sketcher.Constraint("Equal", 30, 34),
    Sketcher.Constraint("Equal", 34, 38),
    Sketcher.Constraint("Equal", 38, 46),
    Sketcher.Constraint("Equal", 46, 50),
    Sketcher.Constraint("Equal", 50, 54),
    Sketcher.Constraint("Equal", 54, 58),
    Sketcher.Constraint("Equal", 58, 66),
    Sketcher.Constraint("Equal", 66, 70),
    Sketcher.Constraint("Equal", 70, 74),
    Sketcher.Constraint("Equal", 74, 78),
    Sketcher.Constraint("Radius", 0, Q("50 mm")),
    Sketcher.Constraint("Diameter", 84, Q("5.5 mm")),
    Sketcher.Constraint("DistanceX", 2, 1, 2, 2, Q("3 mm")),
    Sketcher.Constraint("DistanceX", 80, 2, 80, 1, Q("16 mm")),
    Sketcher.Constraint("DistanceY", 81, 1, 81, 2, Q("6 mm")),
    Sketcher.Constraint("Angle", 5, Q("108 deg")),
    Sketcher.Constraint("Angle", 9, Q("126 deg")),
    Sketcher.Constraint("Angle", 13, Q("144 deg")),
    Sketcher.Constraint("Angle", 17, Q("162 deg")),
    Sketcher.Constraint("Distance", 6, Q("3 mm")),
    Sketcher.Constraint("DistanceX", 80, 2, -1, 1, Q("8 mm")),
    Sketcher.Constraint("DistanceX", 84, 3, -1, 1, Q("17.5 mm")),
    Sketcher.Constraint("Radius", 44, Q("49.992984 mm")),
    Sketcher.Constraint("DistanceX", 61, 1, 61, 2, Q("4.95916 mm")),
    Sketcher.Constraint("DistanceY", 41, 2, 41, 1, Q("4.987321 mm")),
    Sketcher.Constraint("DistanceX", -1, 1, 6, 2, Q("15.3299 mm")),
    Sketcher.Constraint("DistanceX", -1, 1, 18, 2, Q("43.240899 mm")),
    Sketcher.Constraint("DistanceX", -1, 1, 21, 2, Q("44.972399 mm")),
    Sketcher.Constraint("DistanceX", -1, 1, 26, 2, Q("42.299399 mm")),
    Sketcher.Constraint("DistanceY", -1, 1, 40, 2, Q("49.2707 mm")),
    Sketcher.Constraint("DistanceY", 76, 2, -1, 1, Q("47.7769 mm")),
    Sketcher.Constraint("Distance", 5, Q("4.984921 mm")),
    Sketcher.Constraint("Distance", 17, Q("5.00301 mm")),
    Sketcher.Constraint("Distance", 27, Q("5.004452 mm")),
    Sketcher.Constraint("Distance", 31, Q("5.00209 mm")),
    Sketcher.Constraint("Distance", 39, Q("4.991608 mm")),
    Sketcher.Constraint("Distance", 47, Q("4.977079 mm")),
    Sketcher.Constraint("Distance", 51, Q("4.970028 mm")),
    Sketcher.Constraint("Distance", 65, Q("4.958779 mm")),
    Sketcher.Constraint("Distance", 67, Q("4.957569 mm")),
    Sketcher.Constraint("Distance", 69, Q("4.960712 mm")),
    Sketcher.Constraint("Distance", 71, Q("4.959928 mm")),
    Sketcher.Constraint("Distance", 75, Q("4.964351 mm")),
    Sketcher.Constraint("Distance", 77, Q("4.970551 mm")),
    Sketcher.Constraint("DistanceX", 21, 2, 21, 1, Q("5.005667 mm")),
    Sketcher.Constraint("DistanceX", 63, 2, 63, 1, Q("4.957503 mm")),
    Sketcher.Constraint("DistanceY", 1, 1, 1, 2, Q("4.977495 mm")),
    Sketcher.Constraint("DistanceX", -1, 1, 8, 2, Q("28.164148 mm")),
    Sketcher.Constraint("DistanceX", -1, 1, 14, 2, Q("37.274389 mm")),
    Sketcher.Constraint("DistanceX", -1, 1, 28, 2, Q("41.295319 mm")),
    Sketcher.Constraint("DistanceY", -1, 1, 34, 2, Q("36.585369 mm")),
    Sketcher.Constraint("DistanceX", -1, 1, 35, 2, Q("28.12959 mm")),
    Sketcher.Constraint("DistanceY", -1, 1, 36, 2, Q("46.374659 mm")),
    Sketcher.Constraint("DistanceX", 44, 2, -1, 1, Q("14.060191 mm")),
    Sketcher.Constraint("DistanceX", 48, 2, -1, 1, Q("28.19951 mm")),
    Sketcher.Constraint("DistanceX", 53, 2, -1, 1, Q("35.557791 mm")),
    Sketcher.Constraint("DistanceX", 55, 2, -1, 1, Q("41.33715 mm")),
    Sketcher.Constraint("DistanceX", 56, 2, -1, 1, Q("47.079571 mm")),
    Sketcher.Constraint("DistanceY", -1, 1, 57, 2, Q("14.596412 mm")),
    Sketcher.Constraint("DistanceY", 73, 2, -1, 1, Q("36.246811 mm")),
    Sketcher.Constraint("Distance", 9, Q("4.992103 mm")),
    Sketcher.Constraint("Distance", 13, Q("4.998336 mm")),
    Sketcher.Constraint("DistanceY", 84, 3, -1, 1, Q("8.708176 mm")),
    Sketcher.Constraint("DistanceY", 80, 2, -1, 1, Q("34.708176 mm")),
])
pad1 = body.newObject("PartDesign::Pad", "Pad")
pad1.Profile = sketch1
pad1.Length = 6

# Sketch on XY plane
sketch2 = body.newObject("Sketcher::SketchObject", "Sketch001")
sketch2.AttachmentSupport = (doc.getObject("XY_Plane"), [""])
sketch2.MapMode = "FlatFace"
sketch2.addGeometry([
    Part.Circle(App.Vector(-17.5, -8.708176, 0), App.Vector(0, 0, 1), 2.75),  # 0
    Part.Circle(App.Vector(17.5, -8.708176, 0), App.Vector(0, 0, 1), 2.75),  # 1
    Part.LineSegment(App.Vector(8, -28.708176, 0), App.Vector(8, -34.708176, 0)),  # 2
    Part.LineSegment(App.Vector(8, -34.708176, 0), App.Vector(-8, -34.708176, 0)),  # 3
    Part.LineSegment(App.Vector(-8, -34.708176, 0), App.Vector(-8, -28.708176, 0)),  # 4
    Part.LineSegment(App.Vector(-8, -28.708176, 0), App.Vector(8, -28.708176, 0)),  # 5
], False)
sketch2.addConstraint([
    Sketcher.Constraint("Coincident", 2, 2, 3, 1),
    Sketcher.Constraint("Coincident", 3, 2, 4, 1),
    Sketcher.Constraint("Coincident", 4, 2, 5, 1),
    Sketcher.Constraint("Coincident", 5, 2, 2, 1),
    Sketcher.Constraint("Vertical", 2),
    Sketcher.Constraint("Horizontal", 3),
    Sketcher.Constraint("Vertical", 4),
    Sketcher.Constraint("Horizontal", 5),
    Sketcher.Constraint("Equal", 0, 1),
    Sketcher.Constraint("Symmetric", 0, 3, 1, 3, -2),
    Sketcher.Constraint("Diameter", 0, Q("5.5 mm")),
    Sketcher.Constraint("DistanceX", 3, 2, 3, 1, Q("16 mm")),
    Sketcher.Constraint("DistanceY", 2, 2, 2, 1, Q("6 mm")),
    Sketcher.Constraint("DistanceX", -1, 1, 2, 2, Q("8 mm")),
    Sketcher.Constraint("DistanceX", 0, 3, 1, 3, Q("35 mm")),
    Sketcher.Constraint("DistanceY", 2, 2, 1, 3, Q("26 mm")),
    Sketcher.Constraint("DistanceY", 0, 3, -1, 1, Q("8.708176 mm")),
])
pad2 = body.newObject("PartDesign::Pad", "Pad001")
pad2.Profile = sketch2
pad2.Length = 6

doc.recompute()
